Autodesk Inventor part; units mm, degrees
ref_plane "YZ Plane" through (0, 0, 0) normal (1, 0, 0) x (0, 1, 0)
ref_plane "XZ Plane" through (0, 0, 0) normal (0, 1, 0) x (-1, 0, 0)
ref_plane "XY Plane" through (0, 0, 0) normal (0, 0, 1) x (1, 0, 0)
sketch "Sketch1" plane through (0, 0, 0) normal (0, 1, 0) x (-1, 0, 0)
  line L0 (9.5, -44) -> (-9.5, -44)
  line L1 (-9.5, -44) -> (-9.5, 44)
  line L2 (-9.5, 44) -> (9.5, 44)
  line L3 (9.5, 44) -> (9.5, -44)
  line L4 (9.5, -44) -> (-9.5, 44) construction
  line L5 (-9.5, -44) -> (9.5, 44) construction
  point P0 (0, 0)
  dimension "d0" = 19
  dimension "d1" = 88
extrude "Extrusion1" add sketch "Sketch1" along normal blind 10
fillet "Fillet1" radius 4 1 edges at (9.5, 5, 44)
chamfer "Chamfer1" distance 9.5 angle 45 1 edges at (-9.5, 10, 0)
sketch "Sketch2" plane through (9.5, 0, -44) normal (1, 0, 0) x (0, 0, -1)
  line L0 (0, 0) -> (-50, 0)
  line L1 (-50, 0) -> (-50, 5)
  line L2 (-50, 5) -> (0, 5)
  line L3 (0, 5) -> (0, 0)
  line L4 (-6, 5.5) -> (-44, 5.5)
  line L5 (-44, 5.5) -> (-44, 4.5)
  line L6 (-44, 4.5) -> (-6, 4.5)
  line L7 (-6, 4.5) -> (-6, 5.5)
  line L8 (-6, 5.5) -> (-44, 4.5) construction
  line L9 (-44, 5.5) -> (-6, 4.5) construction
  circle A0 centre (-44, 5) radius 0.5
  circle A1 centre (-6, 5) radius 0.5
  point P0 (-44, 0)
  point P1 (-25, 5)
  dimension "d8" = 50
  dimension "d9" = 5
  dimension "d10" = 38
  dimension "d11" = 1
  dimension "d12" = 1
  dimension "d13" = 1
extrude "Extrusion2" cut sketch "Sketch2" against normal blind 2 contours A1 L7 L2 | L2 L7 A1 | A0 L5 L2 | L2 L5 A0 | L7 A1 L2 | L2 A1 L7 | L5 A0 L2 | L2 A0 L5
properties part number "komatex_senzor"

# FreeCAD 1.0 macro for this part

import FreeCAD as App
import Part
import Sketcher

V = App.Vector


def edges_at(feature, points):
    """Names of the edges that pass closest to the given points."""
    edges = feature.Shape.Edges
    near = lambda p: min(range(len(edges)), key=lambda i: edges[i].distToShape(Part.Vertex(*p))[0])
    return sorted({f"Edge{near(p) + 1}" for p in points})


def add_polygon(sketch, points):
    """Adds a closed chain of lines whose ends are joined by coincident constraints."""
    first, n = sketch.GeometryCount, len(points)
    for a, b in zip(points, points[1:] + points[:1]):
        sketch.addGeometry(Part.LineSegment(App.Vector(*a, 0), App.Vector(*b, 0)), False)
    for i in range(n):
        sketch.addConstraint(Sketcher.Constraint("Coincident", first + i, 2, first + (i + 1) % n, 1))

doc = App.newDocument("Part")
body = doc.addObject("PartDesign::Body", "Body")

# Sketch on XZ plane
sketch1 = body.newObject("Sketcher::SketchObject", "Sketch")
sketch1.AttachmentSupport = (doc.getObject("XZ_Plane"), [""])
sketch1.MapMode = "FlatFace"
add_polygon(sketch1, [(10, -44), (-10, -44), (-10, 44), (10, 44)])  # lines 0-3
sketch1.addConstraint([
    Sketcher.Constraint("Horizontal", 0),
    Sketcher.Constraint("Vertical", 1),
    Sketcher.Constraint("Horizontal", 2),
    Sketcher.Constraint("Vertical", 3),
    Sketcher.Constraint("Symmetric", 0, 2, 2, 2, -1, 1),
    Sketcher.Constraint("DistanceX", 0, 2, 0, 1, 19.0),
    Sketcher.Constraint("DistanceY", 1, 1, 1, 2, 88.0),
])
pad1 = body.newObject("PartDesign::Pad", "Pad")
pad1.Profile = sketch1
pad1.Length = 10
pad1.Reversed = True
doc.recompute()

fillet = body.newObject("PartDesign::Fillet", "Fillet")
fillet.Base = (pad1, edges_at(pad1, [(9.5, 5, 44)]))
fillet.Radius = 4
doc.recompute()

chamfer = body.newObject("PartDesign::Chamfer", "Chamfer")
chamfer.Base = (fillet, edges_at(fillet, [(-9.5, 10, 0)]))
chamfer.Size = 9.5

# Sketch on YZ plane
sketch2 = body.newObject("Sketcher::SketchObject", "Sketch001")
sketch2.AttachmentSupport = (doc.getObject("YZ_Plane"), [""])
sketch2.MapMode = "FlatFace"
sketch2.AttachmentOffset = App.Placement(V(0, 0, 9.5), App.Rotation())
sketch2.addGeometry([
    Part.Circle(V(5, -38, 0), V(0, 0, 1), 0.5),
    Part.Circle(V(5, 0, 0), V(0, 0, 1), 0.5),
], False)
sketch2.addConstraint([
    Sketcher.Constraint("Equal", 0, 1),
    Sketcher.Constraint("PointOnObject", 1, 3, -1),
    Sketcher.Constraint("Vertical", 0, 3, 1, 3),
    Sketcher.Constraint("Diameter", 0, 1.0),
    Sketcher.Constraint("DistanceX", -1, 1, 0, 3, 5.0),
    Sketcher.Constraint("DistanceY", 0, 3, -1, 1, 38.0),
])
pocket1 = body.newObject("PartDesign::Pocket", "Pocket")
pocket1.Profile = sketch2
pocket1.Length = 2

doc.recompute()
